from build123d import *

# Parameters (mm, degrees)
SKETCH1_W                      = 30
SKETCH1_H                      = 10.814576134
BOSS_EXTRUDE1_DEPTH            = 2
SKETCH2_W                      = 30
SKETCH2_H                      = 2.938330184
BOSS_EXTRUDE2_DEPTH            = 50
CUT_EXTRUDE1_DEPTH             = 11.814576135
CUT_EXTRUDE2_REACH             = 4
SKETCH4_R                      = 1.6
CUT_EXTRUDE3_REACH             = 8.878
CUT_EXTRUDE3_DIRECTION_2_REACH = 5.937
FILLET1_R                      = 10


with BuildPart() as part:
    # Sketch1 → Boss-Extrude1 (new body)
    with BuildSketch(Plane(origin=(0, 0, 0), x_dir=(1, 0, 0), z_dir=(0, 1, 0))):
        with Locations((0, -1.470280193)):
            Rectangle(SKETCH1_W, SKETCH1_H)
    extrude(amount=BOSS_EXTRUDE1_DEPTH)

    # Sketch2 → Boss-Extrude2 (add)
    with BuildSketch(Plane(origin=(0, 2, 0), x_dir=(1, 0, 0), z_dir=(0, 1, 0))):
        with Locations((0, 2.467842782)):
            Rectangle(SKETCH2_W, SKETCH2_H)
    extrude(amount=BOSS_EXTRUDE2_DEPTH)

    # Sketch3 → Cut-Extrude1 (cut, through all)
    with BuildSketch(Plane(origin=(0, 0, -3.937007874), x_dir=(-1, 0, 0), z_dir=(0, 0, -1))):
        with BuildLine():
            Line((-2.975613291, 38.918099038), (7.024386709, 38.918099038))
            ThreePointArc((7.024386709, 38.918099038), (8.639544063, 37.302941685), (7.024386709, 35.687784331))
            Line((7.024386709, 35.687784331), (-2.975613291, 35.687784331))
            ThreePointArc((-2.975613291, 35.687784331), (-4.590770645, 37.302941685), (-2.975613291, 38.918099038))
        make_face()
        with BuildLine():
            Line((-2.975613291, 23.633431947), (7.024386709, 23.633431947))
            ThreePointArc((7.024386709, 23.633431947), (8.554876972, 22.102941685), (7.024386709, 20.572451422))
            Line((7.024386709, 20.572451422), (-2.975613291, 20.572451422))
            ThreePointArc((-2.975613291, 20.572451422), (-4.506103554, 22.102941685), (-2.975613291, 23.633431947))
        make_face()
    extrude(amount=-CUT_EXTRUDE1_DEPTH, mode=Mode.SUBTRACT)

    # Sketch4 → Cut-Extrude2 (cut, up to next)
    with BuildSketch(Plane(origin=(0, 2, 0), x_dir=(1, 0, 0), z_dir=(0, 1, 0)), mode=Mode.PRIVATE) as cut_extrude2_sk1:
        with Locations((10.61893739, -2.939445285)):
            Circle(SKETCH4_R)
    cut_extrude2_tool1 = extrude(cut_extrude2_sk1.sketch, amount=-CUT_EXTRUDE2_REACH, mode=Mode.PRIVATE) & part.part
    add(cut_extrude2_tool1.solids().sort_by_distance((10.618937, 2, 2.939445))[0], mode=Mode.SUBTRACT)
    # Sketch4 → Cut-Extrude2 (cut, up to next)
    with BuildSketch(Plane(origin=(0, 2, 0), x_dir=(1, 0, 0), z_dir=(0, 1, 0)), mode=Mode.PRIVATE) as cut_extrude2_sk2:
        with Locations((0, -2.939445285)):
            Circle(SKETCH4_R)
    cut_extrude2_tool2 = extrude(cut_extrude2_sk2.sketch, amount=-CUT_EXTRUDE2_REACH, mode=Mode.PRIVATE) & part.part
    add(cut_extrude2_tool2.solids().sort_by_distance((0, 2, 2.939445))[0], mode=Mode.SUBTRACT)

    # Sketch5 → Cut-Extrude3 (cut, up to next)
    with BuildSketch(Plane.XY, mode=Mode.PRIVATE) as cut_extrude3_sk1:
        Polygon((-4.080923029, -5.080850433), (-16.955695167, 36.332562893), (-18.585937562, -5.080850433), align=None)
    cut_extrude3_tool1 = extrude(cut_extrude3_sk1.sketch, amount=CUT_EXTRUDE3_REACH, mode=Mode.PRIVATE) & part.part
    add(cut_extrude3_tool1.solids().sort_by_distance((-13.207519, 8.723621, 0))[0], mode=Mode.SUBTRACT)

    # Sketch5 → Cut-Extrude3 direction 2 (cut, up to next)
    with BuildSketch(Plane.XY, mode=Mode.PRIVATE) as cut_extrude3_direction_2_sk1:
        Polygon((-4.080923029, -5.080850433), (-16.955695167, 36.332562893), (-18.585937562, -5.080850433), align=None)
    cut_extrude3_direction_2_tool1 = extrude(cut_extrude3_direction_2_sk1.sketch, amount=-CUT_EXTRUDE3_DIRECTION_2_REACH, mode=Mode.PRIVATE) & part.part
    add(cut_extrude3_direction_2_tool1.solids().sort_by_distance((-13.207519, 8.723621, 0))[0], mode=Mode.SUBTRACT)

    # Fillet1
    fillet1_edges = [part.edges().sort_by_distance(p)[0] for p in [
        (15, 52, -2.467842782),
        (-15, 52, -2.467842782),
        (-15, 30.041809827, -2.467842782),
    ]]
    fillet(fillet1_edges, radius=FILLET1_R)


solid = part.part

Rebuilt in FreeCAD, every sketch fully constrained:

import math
import FreeCAD as App
import Part
import Sketcher


def edges_at(feature, points):
    """Names of the edges that pass closest to the given points."""
    edges = feature.Shape.Edges
    near = lambda p: min(range(len(edges)), key=lambda i: edges[i].distToShape(Part.Vertex(*p))[0])
    return sorted({f"Edge{near(p) + 1}" for p in points})

doc = App.newDocument("Part")
body = doc.addObject("PartDesign::Body", "Body")

sketch1 = doc.addObject("Sketcher::SketchObject", "Sketch")
body.addObject(sketch1)
sketch1.AttachmentSupport = (doc.XZ_Plane, [""])
sketch1.MapMode = "FlatFace"
sketch1.addGeometry([
    Part.LineSegment(App.Vector(-15, -4, 0), App.Vector(-15, 7, 0)),
    Part.LineSegment(App.Vector(-15, 7, 0), App.Vector(15, 7, 0)),
    Part.LineSegment(App.Vector(15, 7, 0), App.Vector(15, -4, 0)),
    Part.LineSegment(App.Vector(15, -4, 0), App.Vector(-15, -4, 0)),
], False)
sketch1.addConstraint([
    Sketcher.Constraint("Coincident", 0, 2, 1, 1),
    Sketcher.Constraint("Coincident", 1, 2, 2, 1),
    Sketcher.Constraint("Coincident", 2, 2, 3, 1),
    Sketcher.Constraint("Coincident", 3, 2, 0, 1),
    Sketcher.Constraint("Vertical", 0),
    Sketcher.Constraint("Horizontal", 1),
    Sketcher.Constraint("Vertical", 2),
    Sketcher.Constraint("Horizontal", 3),
    Sketcher.Constraint("DistanceX", 1, 1, 1, 2, 30.0),
    Sketcher.Constraint("DistanceX", 0, 2, -1, 1, 15.0),
    Sketcher.Constraint("DistanceY", 0, 1, 0, 2, 10.814576),
    Sketcher.Constraint("DistanceY", -1, 1, 0, 2, 6.877568),
])
pad1 = doc.addObject("PartDesign::Pad", "Pad")
body.addObject(pad1)
pad1.Profile = sketch1
pad1.Length = 2
pad1.Reversed = True

sketch2 = doc.addObject("Sketcher::SketchObject", "Sketch001")
body.addObject(sketch2)
sketch2.AttachmentSupport = (doc.XZ_Plane, [""])
sketch2.MapMode = "FlatFace"
sketch2.AttachmentOffset = App.Placement(App.Vector(0, 0, -2), App.Rotation())
sketch2.addGeometry([
    Part.LineSegment(App.Vector(-15, -3.9, 0), App.Vector(-15, -1, 0)),
    Part.LineSegment(App.Vector(-15, -1, 0), App.Vector(15, -1, 0)),
    Part.LineSegment(App.Vector(15, -1, 0), App.Vector(15, -3.9, 0)),
    Part.LineSegment(App.Vector(15, -3.9, 0), App.Vector(-15, -3.9, 0)),
], False)
sketch2.addConstraint([
    Sketcher.Constraint("Coincident", 0, 2, 1, 1),
    Sketcher.Constraint("Coincident", 1, 2, 2, 1),
    Sketcher.Constraint("Coincident", 2, 2, 3, 1),
    Sketcher.Constraint("Coincident", 3, 2, 0, 1),
    Sketcher.Constraint("Vertical", 0),
    Sketcher.Constraint("Horizontal", 1),
    Sketcher.Constraint("Vertical", 2),
    Sketcher.Constraint("Horizontal", 3),
    Sketcher.Constraint("DistanceX", 1, 1, 1, 2, 30.0),
    Sketcher.Constraint("DistanceX", 0, 2, -1, 1, 15.0),
    Sketcher.Constraint("DistanceY", 0, 1, 0, 2, 2.93833),
    Sketcher.Constraint("DistanceY", 0, 2, -1, 1, 0.998678),
])
pad2 = doc.addObject("PartDesign::Pad", "Pad001")
body.addObject(pad2)
pad2.Profile = sketch2
pad2.Length = 50
pad2.Reversed = True

sketch3 = doc.addObject("Sketcher::SketchObject", "Sketch002")
body.addObject(sketch3)
sketch3.AttachmentSupport = (doc.XY_Plane, [""])
sketch3.MapMode = "FlatFace"
sketch3.AttachmentOffset = App.Placement(App.Vector(0, 0, -3.937008), App.Rotation())
sketch3.addGeometry([
    Part.LineSegment(App.Vector(-7, 38.9, 0), App.Vector(3, 38.9, 0)),
    Part.ArcOfCircle(Part.Circle(App.Vector(3, 37.3, 0), App.Vector(0, 0, 1), 1.6), math.radians(-90), math.radians(90)),
    Part.LineSegment(App.Vector(3, 35.7, 0), App.Vector(-7, 35.7, 0)),
    Part.ArcOfCircle(Part.Circle(App.Vector(-7, 37.3, 0), App.Vector(0, 0, 1), 1.6), math.radians(90), math.radians(270)),
    Part.LineSegment(App.Vector(-7, 23.6, 0), App.Vector(3, 23.6, 0)),
    Part.ArcOfCircle(Part.Circle(App.Vector(3, 22.1, 0), App.Vector(0, 0, 1), 1.5), math.radians(-90), math.radians(90)),
    Part.LineSegment(App.Vector(3, 20.6, 0), App.Vector(-7, 20.6, 0)),
    Part.ArcOfCircle(Part.Circle(App.Vector(-7, 22.1, 0), App.Vector(0, 0, 1), 1.5), math.radians(90), math.radians(270)),
], False)
sketch3.addConstraint([
    Sketcher.Constraint("Tangent", 0, 2, 1, 2),
    Sketcher.Constraint("Tangent", 1, 1, 2, 1),
    Sketcher.Constraint("Tangent", 2, 2, 3, 2),
    Sketcher.Constraint("Tangent", 3, 1, 0, 1),
    Sketcher.Constraint("Tangent", 4, 2, 5, 2),
    Sketcher.Constraint("Tangent", 5, 1, 6, 1),
    Sketcher.Constraint("Tangent", 6, 2, 7, 2),
    Sketcher.Constraint("Tangent", 7, 1, 4, 1),
    Sketcher.Constraint("Horizontal", 0),
    Sketcher.Constraint("Horizontal", 2),
    Sketcher.Constraint("Horizontal", 4),
    Sketcher.Constraint("Horizontal", 6),
    Sketcher.Constraint("Vertical", 1, 3, 5, 3),
    Sketcher.Constraint("Vertical", 3, 3, 7, 3),
    Sketcher.Constraint("DistanceX", 0, 1, 0, 2, 10.0),
    Sketcher.Constraint("DistanceY", 5, 3, 1, 3, 15.2),
    Sketcher.Constraint("Radius", 5, 1.53049),
    Sketcher.Constraint("Radius", 1, 1.615157),
    Sketcher.Constraint("DistanceY", -1, 1, 0, 2, 38.918099),
    Sketcher.Constraint("DistanceX", -1, 1, 1, 3, 2.975613),
])
pocket1 = doc.addObject("PartDesign::Pocket", "Pocket")
body.addObject(pocket1)
pocket1.Profile = sketch3
pocket1.Type = "ThroughAll"
pocket1.Reversed = True

sketch4 = doc.addObject("Sketcher::SketchObject", "Sketch003")
body.addObject(sketch4)
sketch4.AttachmentSupport = (doc.XZ_Plane, [""])
sketch4.MapMode = "FlatFace"
sketch4.AttachmentOffset = App.Placement(App.Vector(0, 0, -2), App.Rotation())
sketch4.addGeometry(Part.Circle(App.Vector(10.6, 2.9, 0), App.Vector(0, 0, 1), 1.6), False)
sketch4.addConstraint([
    Sketcher.Constraint("Diameter", 0, 3.2),
    Sketcher.Constraint("DistanceX", -1, 1, 0, 3, 10.618937),
    Sketcher.Constraint("DistanceY", -1, 1, 0, 3, 2.939445),
])
pocket2 = doc.addObject("PartDesign::Pocket", "Pocket001")
body.addObject(pocket2)
pocket2.Profile = sketch4
pocket2.Type = "UpToFirst"
pocket2.Reversed = True

sketch5 = doc.addObject("Sketcher::SketchObject", "Sketch004")
body.addObject(sketch5)
sketch5.AttachmentSupport = (doc.XZ_Plane, [""])
sketch5.MapMode = "FlatFace"
sketch5.AttachmentOffset = App.Placement(App.Vector(0, 0, -2), App.Rotation())
sketch5.addGeometry(Part.Circle(App.Vector(0, 2.9, 0), App.Vector(0, 0, 1), 1.6), False)
sketch5.addConstraint([
    Sketcher.Constraint("PointOnObject", 0, 3, -2),
    Sketcher.Constraint("Diameter", 0, 3.2),
    Sketcher.Constraint("DistanceY", -1, 1, 0, 3, 2.939445),
])
pocket3 = doc.addObject("PartDesign::Pocket", "Pocket002")
body.addObject(pocket3)
pocket3.Profile = sketch5
pocket3.Type = "UpToFirst"
pocket3.Reversed = True

sketch6 = doc.addObject("Sketcher::SketchObject", "Sketch005")
body.addObject(sketch6)
sketch6.AttachmentSupport = (doc.XY_Plane, [""])
sketch6.MapMode = "FlatFace"
sketch6.addGeometry([
    Part.LineSegment(App.Vector(-4, -5, 0), App.Vector(-17, 36, 0)),
    Part.LineSegment(App.Vector(-17, 36, 0), App.Vector(-19, -5, 0)),
    Part.LineSegment(App.Vector(-19, -5, 0), App.Vector(-4, -5, 0)),
], False)
sketch6.addConstraint([
    Sketcher.Constraint("Coincident", 0, 2, 1, 1),
    Sketcher.Constraint("Coincident", 1, 2, 2, 1),
    Sketcher.Constraint("Coincident", 2, 2, 0, 1),
    Sketcher.Constraint("Horizontal", 2),
    Sketcher.Constraint("Distance", 1, 41.445488),
    Sketcher.Constraint("DistanceX", 2, 1, 2, 2, 14.505015),
    Sketcher.Constraint("DistanceY", 1, 2, -1, 1, 5.08085),
    Sketcher.Constraint("Distance", 0, 43.368543),
    Sketcher.Constraint("DistanceX", 0, 2, -1, 1, 16.955695),
])
pocket4 = doc.addObject("PartDesign::Pocket", "Pocket003")
body.addObject(pocket4)
pocket4.Profile = sketch6
pocket4.Length = 6.877568
pocket4.Reversed = True

sketch7 = doc.addObject("Sketcher::SketchObject", "Sketch006")
body.addObject(sketch7)
sketch7.AttachmentSupport = (doc.XY_Plane, [""])
sketch7.MapMode = "FlatFace"
sketch7.addGeometry([
    Part.LineSegment(App.Vector(-4, -5, 0), App.Vector(-17, 36, 0)),
    Part.LineSegment(App.Vector(-17, 36, 0), App.Vector(-19, -5, 0)),
    Part.LineSegment(App.Vector(-19, -5, 0), App.Vector(-4, -5, 0)),
], False)
sketch7.addConstraint([
    Sketcher.Constraint("Coincident", 0, 2, 1, 1),
    Sketcher.Constraint("Coincident", 1, 2, 2, 1),
    Sketcher.Constraint("Coincident", 2, 2, 0, 1),
    Sketcher.Constraint("Horizontal", 2),
    Sketcher.Constraint("Distance", 1, 41.445488),
    Sketcher.Constraint("DistanceX", 2, 1, 2, 2, 14.505015),
    Sketcher.Constraint("DistanceY", 1, 2, -1, 1, 5.08085),
    Sketcher.Constraint("Distance", 0, 43.368543),
    Sketcher.Constraint("DistanceX", 0, 2, -1, 1, 16.955695),
])
pocket5 = doc.addObject("PartDesign::Pocket", "Pocket004")
body.addObject(pocket5)
pocket5.Profile = sketch7
pocket5.Length = 3.937008
doc.recompute()

fillet = doc.addObject("PartDesign::Fillet", "Fillet")
body.addObject(fillet)
fillet.Base = (pocket5, edges_at(pocket5, [(15, 52, -2.468), (-15, 52, -2.468), (-15, 30.042, -2.468)]))
fillet.Radius = 10

doc.recompute()
